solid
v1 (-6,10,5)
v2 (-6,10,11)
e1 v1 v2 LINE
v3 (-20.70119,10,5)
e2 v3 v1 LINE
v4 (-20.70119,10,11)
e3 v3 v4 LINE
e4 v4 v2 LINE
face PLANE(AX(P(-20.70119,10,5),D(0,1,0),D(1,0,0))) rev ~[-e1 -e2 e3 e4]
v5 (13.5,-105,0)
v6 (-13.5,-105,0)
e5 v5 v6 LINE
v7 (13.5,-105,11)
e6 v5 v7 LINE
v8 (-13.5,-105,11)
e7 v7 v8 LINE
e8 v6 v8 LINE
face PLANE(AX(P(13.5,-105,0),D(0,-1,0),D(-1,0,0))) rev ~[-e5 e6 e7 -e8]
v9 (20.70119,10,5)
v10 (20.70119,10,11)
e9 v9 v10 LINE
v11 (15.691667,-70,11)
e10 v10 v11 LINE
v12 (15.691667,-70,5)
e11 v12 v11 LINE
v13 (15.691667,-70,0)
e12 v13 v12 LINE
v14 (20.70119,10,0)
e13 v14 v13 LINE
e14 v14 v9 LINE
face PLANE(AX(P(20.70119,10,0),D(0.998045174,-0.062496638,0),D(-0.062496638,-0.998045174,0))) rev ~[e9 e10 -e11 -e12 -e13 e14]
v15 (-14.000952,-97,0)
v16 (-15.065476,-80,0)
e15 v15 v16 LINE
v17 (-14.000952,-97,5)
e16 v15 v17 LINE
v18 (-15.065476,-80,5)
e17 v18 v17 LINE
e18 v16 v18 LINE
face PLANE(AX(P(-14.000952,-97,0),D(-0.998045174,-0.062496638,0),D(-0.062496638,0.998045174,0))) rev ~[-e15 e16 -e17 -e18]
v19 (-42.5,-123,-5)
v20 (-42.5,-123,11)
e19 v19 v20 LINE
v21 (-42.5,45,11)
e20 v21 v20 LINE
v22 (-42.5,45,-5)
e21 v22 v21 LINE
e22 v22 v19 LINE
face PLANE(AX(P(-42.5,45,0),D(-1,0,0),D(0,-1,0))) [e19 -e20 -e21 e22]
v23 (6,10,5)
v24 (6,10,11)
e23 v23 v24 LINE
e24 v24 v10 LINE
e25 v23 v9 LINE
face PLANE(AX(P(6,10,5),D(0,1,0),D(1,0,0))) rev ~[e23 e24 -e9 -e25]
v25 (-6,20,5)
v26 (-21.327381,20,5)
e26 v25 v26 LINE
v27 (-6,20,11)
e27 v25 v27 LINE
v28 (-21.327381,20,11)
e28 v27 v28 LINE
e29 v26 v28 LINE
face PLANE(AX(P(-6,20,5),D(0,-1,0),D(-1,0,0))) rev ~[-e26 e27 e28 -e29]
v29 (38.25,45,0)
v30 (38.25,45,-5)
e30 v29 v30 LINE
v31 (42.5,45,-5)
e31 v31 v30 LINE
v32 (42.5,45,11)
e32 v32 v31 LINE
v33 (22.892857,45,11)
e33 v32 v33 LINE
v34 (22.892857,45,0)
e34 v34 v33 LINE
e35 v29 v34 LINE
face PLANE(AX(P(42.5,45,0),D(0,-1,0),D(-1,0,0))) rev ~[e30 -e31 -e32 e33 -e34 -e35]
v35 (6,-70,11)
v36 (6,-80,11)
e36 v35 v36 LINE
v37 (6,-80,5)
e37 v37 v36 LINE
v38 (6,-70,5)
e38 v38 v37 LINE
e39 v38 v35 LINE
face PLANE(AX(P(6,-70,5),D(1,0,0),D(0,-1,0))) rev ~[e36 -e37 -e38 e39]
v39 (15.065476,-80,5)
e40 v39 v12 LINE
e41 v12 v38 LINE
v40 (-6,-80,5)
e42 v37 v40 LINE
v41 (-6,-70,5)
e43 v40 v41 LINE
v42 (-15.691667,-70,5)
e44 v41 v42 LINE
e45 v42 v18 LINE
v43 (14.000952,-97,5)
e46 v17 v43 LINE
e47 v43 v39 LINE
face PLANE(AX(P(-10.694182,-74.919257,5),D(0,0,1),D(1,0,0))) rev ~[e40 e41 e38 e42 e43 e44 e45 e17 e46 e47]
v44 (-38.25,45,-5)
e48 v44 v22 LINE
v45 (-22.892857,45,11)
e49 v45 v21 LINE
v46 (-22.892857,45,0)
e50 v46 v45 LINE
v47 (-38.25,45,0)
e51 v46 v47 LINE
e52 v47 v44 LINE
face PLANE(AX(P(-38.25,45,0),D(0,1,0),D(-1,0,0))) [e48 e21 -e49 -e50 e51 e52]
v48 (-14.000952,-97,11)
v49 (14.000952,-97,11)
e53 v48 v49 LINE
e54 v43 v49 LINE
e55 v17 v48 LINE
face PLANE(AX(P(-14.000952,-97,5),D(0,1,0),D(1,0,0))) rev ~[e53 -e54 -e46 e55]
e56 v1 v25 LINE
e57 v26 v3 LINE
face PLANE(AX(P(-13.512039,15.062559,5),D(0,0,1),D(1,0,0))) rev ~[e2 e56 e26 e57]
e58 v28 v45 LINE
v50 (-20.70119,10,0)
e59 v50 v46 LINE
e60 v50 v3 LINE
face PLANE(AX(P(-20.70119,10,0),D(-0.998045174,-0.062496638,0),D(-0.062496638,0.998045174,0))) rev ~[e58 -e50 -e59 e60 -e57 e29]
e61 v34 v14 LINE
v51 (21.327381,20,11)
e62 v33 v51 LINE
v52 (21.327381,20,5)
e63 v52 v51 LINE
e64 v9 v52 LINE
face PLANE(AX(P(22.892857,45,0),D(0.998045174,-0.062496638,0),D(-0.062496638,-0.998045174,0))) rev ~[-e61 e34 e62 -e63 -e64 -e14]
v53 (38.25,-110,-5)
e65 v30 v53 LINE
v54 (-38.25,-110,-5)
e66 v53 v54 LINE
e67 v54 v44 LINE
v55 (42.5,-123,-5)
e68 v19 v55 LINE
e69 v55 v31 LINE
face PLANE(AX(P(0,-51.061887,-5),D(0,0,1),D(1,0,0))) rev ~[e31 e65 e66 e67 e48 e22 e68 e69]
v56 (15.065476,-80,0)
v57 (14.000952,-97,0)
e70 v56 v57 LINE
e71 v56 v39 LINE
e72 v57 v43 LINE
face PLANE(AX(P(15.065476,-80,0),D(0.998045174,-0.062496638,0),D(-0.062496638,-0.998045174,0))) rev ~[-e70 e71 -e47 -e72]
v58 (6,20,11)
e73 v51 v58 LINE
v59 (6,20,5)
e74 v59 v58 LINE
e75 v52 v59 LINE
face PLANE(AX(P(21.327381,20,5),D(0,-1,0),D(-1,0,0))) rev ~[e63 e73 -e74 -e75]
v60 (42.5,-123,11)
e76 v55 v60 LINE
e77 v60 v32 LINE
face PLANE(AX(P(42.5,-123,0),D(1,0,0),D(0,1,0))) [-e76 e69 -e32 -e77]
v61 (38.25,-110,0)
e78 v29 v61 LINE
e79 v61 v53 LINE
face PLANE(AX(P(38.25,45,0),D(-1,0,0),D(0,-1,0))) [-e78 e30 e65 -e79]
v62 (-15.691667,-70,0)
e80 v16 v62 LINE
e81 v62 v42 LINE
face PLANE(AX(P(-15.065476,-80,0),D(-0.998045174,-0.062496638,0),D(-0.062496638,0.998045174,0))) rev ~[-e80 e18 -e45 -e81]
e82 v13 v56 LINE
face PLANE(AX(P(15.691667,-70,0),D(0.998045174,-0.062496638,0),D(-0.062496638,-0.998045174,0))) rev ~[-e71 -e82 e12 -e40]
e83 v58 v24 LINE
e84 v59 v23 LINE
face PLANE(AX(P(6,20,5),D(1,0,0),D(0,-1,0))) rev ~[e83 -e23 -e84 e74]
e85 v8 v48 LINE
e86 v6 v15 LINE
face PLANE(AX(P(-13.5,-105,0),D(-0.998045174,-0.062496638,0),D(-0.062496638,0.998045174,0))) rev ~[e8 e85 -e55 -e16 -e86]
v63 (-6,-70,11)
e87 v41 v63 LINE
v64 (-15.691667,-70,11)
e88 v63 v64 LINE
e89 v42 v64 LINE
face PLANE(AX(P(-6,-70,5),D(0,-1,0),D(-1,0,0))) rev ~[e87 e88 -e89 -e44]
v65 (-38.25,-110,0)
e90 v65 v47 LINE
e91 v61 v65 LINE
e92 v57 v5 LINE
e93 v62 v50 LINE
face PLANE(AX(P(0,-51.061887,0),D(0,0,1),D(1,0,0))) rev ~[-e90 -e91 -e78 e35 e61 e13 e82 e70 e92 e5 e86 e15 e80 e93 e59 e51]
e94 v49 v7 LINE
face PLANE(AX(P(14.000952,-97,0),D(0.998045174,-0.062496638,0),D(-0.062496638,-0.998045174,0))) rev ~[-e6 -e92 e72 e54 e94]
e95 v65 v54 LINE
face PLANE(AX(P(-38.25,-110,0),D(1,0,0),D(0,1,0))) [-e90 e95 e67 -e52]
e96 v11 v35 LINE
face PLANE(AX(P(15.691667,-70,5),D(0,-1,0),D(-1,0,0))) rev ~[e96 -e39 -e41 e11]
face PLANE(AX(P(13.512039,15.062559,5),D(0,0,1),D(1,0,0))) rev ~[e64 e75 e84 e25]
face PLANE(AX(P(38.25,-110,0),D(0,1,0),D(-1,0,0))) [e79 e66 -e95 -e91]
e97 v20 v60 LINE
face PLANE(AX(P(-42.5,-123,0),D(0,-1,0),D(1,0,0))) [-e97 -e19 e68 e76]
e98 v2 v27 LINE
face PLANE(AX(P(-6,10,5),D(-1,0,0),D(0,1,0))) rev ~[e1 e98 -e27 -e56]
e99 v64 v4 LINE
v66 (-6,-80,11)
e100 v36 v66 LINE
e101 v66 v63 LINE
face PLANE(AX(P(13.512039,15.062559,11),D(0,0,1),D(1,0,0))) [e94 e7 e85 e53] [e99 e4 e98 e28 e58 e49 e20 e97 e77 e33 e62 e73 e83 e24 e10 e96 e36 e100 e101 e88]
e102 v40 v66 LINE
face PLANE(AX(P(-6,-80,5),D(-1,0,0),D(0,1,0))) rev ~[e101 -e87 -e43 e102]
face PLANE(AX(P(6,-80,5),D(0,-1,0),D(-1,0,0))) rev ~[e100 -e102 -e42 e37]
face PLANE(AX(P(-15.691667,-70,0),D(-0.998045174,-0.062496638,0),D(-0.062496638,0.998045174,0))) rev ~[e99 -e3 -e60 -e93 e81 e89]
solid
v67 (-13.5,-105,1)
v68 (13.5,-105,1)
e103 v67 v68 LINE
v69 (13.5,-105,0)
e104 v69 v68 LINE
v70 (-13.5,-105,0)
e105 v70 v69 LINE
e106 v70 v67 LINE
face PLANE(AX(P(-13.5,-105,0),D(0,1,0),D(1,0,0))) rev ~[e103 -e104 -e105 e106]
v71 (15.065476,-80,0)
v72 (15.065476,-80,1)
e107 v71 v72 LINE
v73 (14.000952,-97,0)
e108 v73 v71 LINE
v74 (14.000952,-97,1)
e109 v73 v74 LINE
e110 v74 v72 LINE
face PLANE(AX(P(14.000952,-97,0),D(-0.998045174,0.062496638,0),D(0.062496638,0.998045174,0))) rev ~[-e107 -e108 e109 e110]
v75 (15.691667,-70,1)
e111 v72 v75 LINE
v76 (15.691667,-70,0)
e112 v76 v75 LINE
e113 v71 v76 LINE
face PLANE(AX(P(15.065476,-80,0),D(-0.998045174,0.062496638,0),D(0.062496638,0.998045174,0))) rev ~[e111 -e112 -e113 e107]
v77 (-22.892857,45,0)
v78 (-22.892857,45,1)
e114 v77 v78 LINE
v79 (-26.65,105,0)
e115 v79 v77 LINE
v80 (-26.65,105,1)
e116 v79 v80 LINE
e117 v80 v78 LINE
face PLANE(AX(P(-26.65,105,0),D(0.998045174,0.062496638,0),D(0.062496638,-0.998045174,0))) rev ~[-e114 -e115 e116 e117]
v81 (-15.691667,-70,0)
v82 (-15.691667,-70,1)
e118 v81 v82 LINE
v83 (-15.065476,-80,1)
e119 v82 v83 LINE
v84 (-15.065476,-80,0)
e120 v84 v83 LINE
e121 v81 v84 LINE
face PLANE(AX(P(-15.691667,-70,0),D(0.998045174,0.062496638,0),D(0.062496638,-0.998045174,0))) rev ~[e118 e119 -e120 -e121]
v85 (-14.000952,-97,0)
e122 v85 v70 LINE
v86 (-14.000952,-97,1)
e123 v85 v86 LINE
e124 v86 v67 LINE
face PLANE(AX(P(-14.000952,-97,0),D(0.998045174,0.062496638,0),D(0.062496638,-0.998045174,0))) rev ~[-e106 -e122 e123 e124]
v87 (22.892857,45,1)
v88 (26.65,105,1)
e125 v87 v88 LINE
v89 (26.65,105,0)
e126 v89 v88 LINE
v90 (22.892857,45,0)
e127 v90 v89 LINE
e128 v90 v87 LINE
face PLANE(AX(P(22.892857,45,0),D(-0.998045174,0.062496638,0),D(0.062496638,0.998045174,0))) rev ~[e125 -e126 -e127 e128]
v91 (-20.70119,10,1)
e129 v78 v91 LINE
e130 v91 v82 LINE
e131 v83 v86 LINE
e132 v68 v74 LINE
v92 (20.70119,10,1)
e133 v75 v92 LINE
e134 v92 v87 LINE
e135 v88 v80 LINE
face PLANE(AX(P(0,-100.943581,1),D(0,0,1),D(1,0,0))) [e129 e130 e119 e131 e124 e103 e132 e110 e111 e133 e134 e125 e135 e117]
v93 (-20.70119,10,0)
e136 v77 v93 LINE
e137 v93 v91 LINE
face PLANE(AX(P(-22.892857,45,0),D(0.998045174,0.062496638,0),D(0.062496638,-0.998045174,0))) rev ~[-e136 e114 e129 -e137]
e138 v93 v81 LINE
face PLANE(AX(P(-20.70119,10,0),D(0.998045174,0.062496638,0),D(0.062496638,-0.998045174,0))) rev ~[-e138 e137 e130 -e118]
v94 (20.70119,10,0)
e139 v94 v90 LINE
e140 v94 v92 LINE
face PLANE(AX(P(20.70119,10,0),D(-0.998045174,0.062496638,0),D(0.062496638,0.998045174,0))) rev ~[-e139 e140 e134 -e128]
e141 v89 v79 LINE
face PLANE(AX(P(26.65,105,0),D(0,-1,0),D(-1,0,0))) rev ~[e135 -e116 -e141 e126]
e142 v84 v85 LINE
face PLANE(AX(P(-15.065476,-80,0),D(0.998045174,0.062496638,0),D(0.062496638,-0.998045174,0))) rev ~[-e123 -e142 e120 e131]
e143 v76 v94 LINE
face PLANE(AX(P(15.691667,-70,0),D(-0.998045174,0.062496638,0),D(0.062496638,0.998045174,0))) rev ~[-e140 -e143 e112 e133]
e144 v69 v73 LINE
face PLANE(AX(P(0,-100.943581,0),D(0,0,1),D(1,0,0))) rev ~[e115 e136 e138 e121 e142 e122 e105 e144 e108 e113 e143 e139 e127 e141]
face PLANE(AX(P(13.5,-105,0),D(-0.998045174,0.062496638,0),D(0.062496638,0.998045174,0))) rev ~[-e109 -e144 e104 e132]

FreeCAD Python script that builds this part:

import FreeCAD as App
import Part
import Sketcher

V = App.Vector


def add_polygon(sketch, points):
    """Adds a closed chain of lines whose ends are joined by coincident constraints."""
    first, n = sketch.GeometryCount, len(points)
    for a, b in zip(points, points[1:] + points[:1]):
        sketch.addGeometry(Part.LineSegment(App.Vector(*a, 0), App.Vector(*b, 0)), False)
    for i in range(n):
        sketch.addConstraint(Sketcher.Constraint("Coincident", first + i, 2, first + (i + 1) % n, 1))

doc = App.newDocument("Part")
body = doc.addObject("PartDesign::Body", "Body")

sketch1 = doc.addObject("Sketcher::SketchObject", "Sketch")
body.addObject(sketch1)
sketch1.AttachmentSupport = (doc.XY_Plane, [""])
sketch1.MapMode = "FlatFace"
add_polygon(sketch1, [(-42, 45), (-42, -123), (42, -123), (42, 45), (23, 45), (21, 10), (16, -70), (15, -80), (14, -97), (14, -105), (-14, -105), (-14, -97), (-15, -80), (-16, -70), (-21, 10), (-23, 45)])
sketch1.addConstraint(Sketcher.Constraint("Vertical", 0))
sketch1.addConstraint(Sketcher.Constraint("Horizontal", 1))
sketch1.addConstraint(Sketcher.Constraint("Vertical", 2))
sketch1.addConstraint(Sketcher.Constraint("Horizontal", 3))
sketch1.addConstraint(Sketcher.Constraint("Horizontal", 9))
sketch1.addConstraint(Sketcher.Constraint("Horizontal", 15))
sketch1.addConstraint(Sketcher.Constraint("Symmetric", 7, 2, 10, 2, -2))
sketch1.addConstraint(Sketcher.Constraint("Symmetric", 6, 2, 11, 2, -2))
sketch1.addConstraint(Sketcher.Constraint("Symmetric", 5, 2, 12, 2, -2))
sketch1.addConstraint(Sketcher.Constraint("Symmetric", 4, 2, 13, 2, -2))
sketch1.addConstraint(Sketcher.Constraint("Symmetric", 3, 2, 14, 2, -2))
sketch1.addConstraint(Sketcher.Constraint("Parallel", 4, 5))
sketch1.addConstraint(Sketcher.Constraint("Parallel", 5, 6))
sketch1.addConstraint(Sketcher.Constraint("Parallel", 6, 7))
sketch1.addConstraint(Sketcher.Constraint("Parallel", 7, 8))
sketch1.addConstraint(Sketcher.Constraint("Parallel", 10, 11))
sketch1.addConstraint(Sketcher.Constraint("Equal", 3, 15))
sketch1.addConstraint(Sketcher.Constraint("DistanceX", 1, 1, 1, 2, 85.0))
sketch1.addConstraint(Sketcher.Constraint("DistanceX", 9, 2, 9, 1, 27.0))
sketch1.addConstraint(Sketcher.Constraint("DistanceY", 0, 2, 0, 1, 168.0))
sketch1.addConstraint(Sketcher.Constraint("DistanceY", 0, 2, -1, 1, 123.0))
sketch1.addConstraint(Sketcher.Constraint("DistanceY", -1, 1, 4, 2, 10.0))
sketch1.addConstraint(Sketcher.Constraint("DistanceY", 5, 2, -1, 1, 70.0))
sketch1.addConstraint(Sketcher.Constraint("DistanceY", 6, 2, -1, 1, 80.0))
sketch1.addConstraint(Sketcher.Constraint("DistanceY", 7, 2, -1, 1, 97.0))
sketch1.addConstraint(Sketcher.Constraint("DistanceY", 8, 2, -1, 1, 105.0))
sketch1.addConstraint(Sketcher.Constraint("DistanceX", 3, 2, 3, 1, 19.607143))
pad1 = doc.addObject("PartDesign::Pad", "Pad")
body.addObject(pad1)
pad1.Profile = sketch1
pad1.Length = 11

sketch2 = doc.addObject("Sketcher::SketchObject", "Sketch001")
body.addObject(sketch2)
sketch2.AttachmentSupport = (doc.XY_Plane, [""])
sketch2.MapMode = "FlatFace"
sketch2.AttachmentOffset = App.Placement(V(0, 0, 5), App.Rotation())
add_polygon(sketch2, [(21, 10), (21, 20), (6, 20), (6, 10)])
add_polygon(sketch2, [(-6, 20), (-21, 20), (-21, 10), (-6, 10)])
add_polygon(sketch2, [(-6, -70), (-16, -70), (-15, -80), (-14, -97), (14, -97), (15, -80), (16, -70), (6, -70), (6, -80), (-6, -80)])
sketch2.addConstraint(Sketcher.Constraint("Horizontal", 1))
sketch2.addConstraint(Sketcher.Constraint("Vertical", 2))
sketch2.addConstraint(Sketcher.Constraint("Horizontal", 3))
sketch2.addConstraint(Sketcher.Constraint("Horizontal", 4))
sketch2.addConstraint(Sketcher.Constraint("Horizontal", 6))
sketch2.addConstraint(Sketcher.Constraint("Vertical", 7))
sketch2.addConstraint(Sketcher.Constraint("Horizontal", 8))
sketch2.addConstraint(Sketcher.Constraint("Horizontal", 11))
sketch2.addConstraint(Sketcher.Constraint("Horizontal", 14))
sketch2.addConstraint(Sketcher.Constraint("Vertical", 15))
sketch2.addConstraint(Sketcher.Constraint("Horizontal", 16))
sketch2.addConstraint(Sketcher.Constraint("Vertical", 17))
sketch2.addConstraint(Sketcher.Constraint("Symmetric", 0, 2, 4, 2, -2))
sketch2.addConstraint(Sketcher.Constraint("Symmetric", 3, 2, 5, 2, -2))
sketch2.addConstraint(Sketcher.Constraint("Symmetric", 9, 2, 12, 2, -2))
sketch2.addConstraint(Sketcher.Constraint("Symmetric", 8, 2, 13, 2, -2))
sketch2.addConstraint(Sketcher.Constraint("Parallel", 5, 9))
sketch2.addConstraint(Sketcher.Constraint("Parallel", 9, 10))
sketch2.addConstraint(Sketcher.Constraint("Parallel", 0, 12))
sketch2.addConstraint(Sketcher.Constraint("Horizontal", 12, 2, 15, 2))
sketch2.addConstraint(Sketcher.Constraint("Vertical", 2, 2, 14, 2))
sketch2.addConstraint(Sketcher.Constraint("Vertical", 7, 2, 16, 2))
sketch2.addConstraint(Sketcher.Constraint("Equal", 1, 4))
sketch2.addConstraint(Sketcher.Constraint("Equal", 7, 15))
sketch2.addConstraint(Sketcher.Constraint("DistanceX", 16, 2, 16, 1, 12.0))
sketch2.addConstraint(Sketcher.Constraint("DistanceY", 2, 2, 2, 1, 10.0))
sketch2.addConstraint(Sketcher.Constraint("DistanceY", -1, 1, 0, 2, 20.0))
sketch2.addConstraint(Sketcher.Constraint("DistanceY", 8, 2, -1, 1, 70.0))
sketch2.addConstraint(Sketcher.Constraint("DistanceY", 10, 2, -1, 1, 97.0))
sketch2.addConstraint(Sketcher.Constraint("DistanceX", 1, 2, 1, 1, 15.327381))
sketch2.addConstraint(Sketcher.Constraint("DistanceX", 3, 1, 3, 2, 14.70119))
sketch2.addConstraint(Sketcher.Constraint("DistanceX", 8, 2, 8, 1, 9.691667))
pad2 = doc.addObject("PartDesign::Pad", "Pad001")
body.addObject(pad2)
pad2.Profile = sketch2
pad2.Length = 6

sketch3 = doc.addObject("Sketcher::SketchObject", "Sketch002")
body.addObject(sketch3)
sketch3.AttachmentSupport = (doc.XY_Plane, [""])
sketch3.MapMode = "FlatFace"
add_polygon(sketch3, [(-38.2, -110), (-38.2, 45), (-42.5, 45), (-42.5, -123), (42.5, -123), (42.5, 45), (38.2, 45), (38.2, -110)])
sketch3.addConstraint(Sketcher.Constraint("Vertical", 0))
sketch3.addConstraint(Sketcher.Constraint("Horizontal", 1))
sketch3.addConstraint(Sketcher.Constraint("Vertical", 2))
sketch3.addConstraint(Sketcher.Constraint("Horizontal", 3))
sketch3.addConstraint(Sketcher.Constraint("Vertical", 4))
sketch3.addConstraint(Sketcher.Constraint("Horizontal", 5))
sketch3.addConstraint(Sketcher.Constraint("Vertical", 6))
sketch3.addConstraint(Sketcher.Constraint("Horizontal", 7))
sketch3.addConstraint(Sketcher.Constraint("Symmetric", 1, 2, 4, 2, -2))
sketch3.addConstraint(Sketcher.Constraint("Equal", 1, 5))
sketch3.addConstraint(Sketcher.Constraint("DistanceX", 3, 1, 3, 2, 85.0))
sketch3.addConstraint(Sketcher.Constraint("DistanceY", 0, 1, 0, 2, 155.0))
sketch3.addConstraint(Sketcher.Constraint("DistanceY", 2, 2, 2, 1, 168.0))
sketch3.addConstraint(Sketcher.Constraint("DistanceX", 7, 2, 7, 1, 76.5))
sketch3.addConstraint(Sketcher.Constraint("DistanceY", -1, 1, 0, 2, 45.0))
pad3 = doc.addObject("PartDesign::Pad", "Pad002")
body.addObject(pad3)
pad3.Profile = sketch3
pad3.Length = 5
pad3.Reversed = True
body2 = doc.addObject("PartDesign::Body", "Body001")

sketch4 = doc.addObject("Sketcher::SketchObject", "Sketch003")
body2.addObject(sketch4)
sketch4.AttachmentSupport = (doc.getObject("XY_Plane001"), [""])
sketch4.MapMode = "FlatFace"
add_polygon(sketch4, [(-14.000952, -97), (-13.5, -105), (13.5, -105), (14.000952, -97), (15.065476, -80), (15.691667, -70), (20.70119, 10), (22.892857, 45), (26.65, 105), (-26.65, 105), (-22.892857, 45), (-20.70119, 10), (-15.691667, -70), (-15.065476, -80)])
sketch4.addConstraint(Sketcher.Constraint("Horizontal", 1))
sketch4.addConstraint(Sketcher.Constraint("Horizontal", 8))
sketch4.addConstraint(Sketcher.Constraint("Symmetric", 6, 2, 9, 2, -2))
sketch4.addConstraint(Sketcher.Constraint("Symmetric", 5, 2, 10, 2, -2))
sketch4.addConstraint(Sketcher.Constraint("Symmetric", 4, 2, 11, 2, -2))
sketch4.addConstraint(Sketcher.Constraint("Symmetric", 3, 2, 12, 2, -2))
sketch4.addConstraint(Sketcher.Constraint("Symmetric", 2, 2, 13, 2, -2))
sketch4.addConstraint(Sketcher.Constraint("Parallel", 2, 3))
sketch4.addConstraint(Sketcher.Constraint("Parallel", 3, 4))
sketch4.addConstraint(Sketcher.Constraint("Parallel", 4, 5))
sketch4.addConstraint(Sketcher.Constraint("Parallel", 5, 6))
sketch4.addConstraint(Sketcher.Constraint("Parallel", 6, 7))
sketch4.addConstraint(Sketcher.Constraint("Parallel", 0, 9))
sketch4.addConstraint(Sketcher.Constraint("Parallel", 9, 10))
sketch4.addConstraint(Sketcher.Constraint("DistanceX", 1, 1, 1, 2, 27.0))
sketch4.addConstraint(Sketcher.Constraint("DistanceX", 8, 2, 8, 1, 53.3))
sketch4.addConstraint(Sketcher.Constraint("DistanceY", 0, 2, -1, 1, 105.0))
sketch4.addConstraint(Sketcher.Constraint("DistanceY", 2, 2, -1, 1, 97.0))
sketch4.addConstraint(Sketcher.Constraint("DistanceY", 3, 2, -1, 1, 80.0))
sketch4.addConstraint(Sketcher.Constraint("DistanceY", 4, 2, -1, 1, 70.0))
sketch4.addConstraint(Sketcher.Constraint("DistanceY", -1, 1, 5, 2, 10.0))
sketch4.addConstraint(Sketcher.Constraint("DistanceY", -1, 1, 6, 2, 45.0))
sketch4.addConstraint(Sketcher.Constraint("DistanceY", -1, 1, 7, 2, 105.0))
pad4 = doc.addObject("PartDesign::Pad", "Pad003")
body2.addObject(pad4)
pad4.Profile = sketch4
pad4.Length = 1

doc.recompute()
